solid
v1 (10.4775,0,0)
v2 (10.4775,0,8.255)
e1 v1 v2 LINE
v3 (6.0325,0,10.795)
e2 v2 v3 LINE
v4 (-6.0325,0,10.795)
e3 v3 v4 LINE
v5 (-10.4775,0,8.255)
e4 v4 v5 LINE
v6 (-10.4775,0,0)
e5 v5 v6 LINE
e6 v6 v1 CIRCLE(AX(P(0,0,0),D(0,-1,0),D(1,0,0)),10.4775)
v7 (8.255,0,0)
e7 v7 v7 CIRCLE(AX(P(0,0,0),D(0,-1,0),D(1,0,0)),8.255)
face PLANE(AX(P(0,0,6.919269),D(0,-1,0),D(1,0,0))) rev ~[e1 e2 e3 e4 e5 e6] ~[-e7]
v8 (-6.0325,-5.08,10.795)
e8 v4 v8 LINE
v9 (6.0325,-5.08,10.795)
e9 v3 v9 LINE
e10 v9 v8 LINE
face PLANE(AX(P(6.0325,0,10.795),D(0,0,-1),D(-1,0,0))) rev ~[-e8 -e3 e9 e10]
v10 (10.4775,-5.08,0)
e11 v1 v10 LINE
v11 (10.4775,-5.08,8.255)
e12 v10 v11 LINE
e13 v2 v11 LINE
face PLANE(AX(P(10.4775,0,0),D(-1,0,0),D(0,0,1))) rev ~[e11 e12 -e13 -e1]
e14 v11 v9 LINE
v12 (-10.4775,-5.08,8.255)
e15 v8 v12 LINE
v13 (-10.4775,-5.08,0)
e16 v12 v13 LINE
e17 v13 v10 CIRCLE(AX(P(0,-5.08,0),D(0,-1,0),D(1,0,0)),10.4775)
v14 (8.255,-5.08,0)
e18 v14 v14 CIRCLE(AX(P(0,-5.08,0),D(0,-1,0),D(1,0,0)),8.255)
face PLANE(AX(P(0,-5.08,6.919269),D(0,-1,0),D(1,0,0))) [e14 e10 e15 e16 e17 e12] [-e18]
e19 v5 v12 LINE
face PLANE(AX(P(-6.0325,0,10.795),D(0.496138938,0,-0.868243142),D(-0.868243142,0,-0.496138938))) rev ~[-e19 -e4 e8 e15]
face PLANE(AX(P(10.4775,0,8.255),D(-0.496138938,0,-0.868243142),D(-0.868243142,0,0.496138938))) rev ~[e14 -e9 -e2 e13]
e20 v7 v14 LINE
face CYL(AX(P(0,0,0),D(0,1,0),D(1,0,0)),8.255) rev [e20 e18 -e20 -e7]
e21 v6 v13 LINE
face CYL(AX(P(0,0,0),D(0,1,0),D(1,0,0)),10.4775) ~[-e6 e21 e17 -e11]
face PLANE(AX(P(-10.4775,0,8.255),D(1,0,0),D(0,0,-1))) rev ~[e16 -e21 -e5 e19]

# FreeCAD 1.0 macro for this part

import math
import FreeCAD as App
import Part
import Sketcher
from FreeCAD import Vector
Q = App.Units.Quantity

doc = App.newDocument("Part")
params = doc.addObject("Spreadsheet::Sheet", "Params")
for row, (alias, value) in enumerate([
    ("sketch1_diameter", "0.65 in"),
    ("sketch1_width", "0.475 in"),
    ("sketch1_height", "0.325 in"),
    ("pad1_length", "0.2 in"),
], start=1):
    params.set(f"A{row}", alias)
    params.set(f"B{row}", "=" + value)
    params.setAlias(f"B{row}", alias)

body = doc.addObject("PartDesign::Body", "Body")

# Sketch on XZ plane
sketch1 = body.newObject("Sketcher::SketchObject", "Sketch")
sketch1.AttachmentSupport = (doc.getObject("XZ_Plane"), [""])
sketch1.MapMode = "FlatFace"
sketch1.addGeometry(Part.LineSegment(Vector(10.4775, 0, 0), Vector(10.4775, 8.255, 0)), False)
sketch1.addGeometry(Part.LineSegment(Vector(10.4775, 8.255, 0), Vector(6.0325, 10.795, 0)), False)
sketch1.addGeometry(Part.LineSegment(Vector(6.0325, 10.795, 0), Vector(-6.0325, 10.795, 0)), False)
sketch1.addGeometry(Part.LineSegment(Vector(-6.0325, 10.795, 0), Vector(-10.4775, 8.255, 0)), False)
sketch1.addGeometry(Part.LineSegment(Vector(-10.4775, 8.255, 0), Vector(-10.4775, 0, 0)), False)
sketch1.addGeometry(Part.ArcOfCircle(Part.Circle(Vector(0, 0, 0), Vector(0, 0, 1), 10.4775), math.radians(180), math.radians(360)), False)
sketch1.addGeometry(Part.Circle(Vector(0, 0, 0), Vector(0, 0, 1), 8.255), False)
sketch1.addConstraint(Sketcher.Constraint("Coincident", 0, 2, 1, 1))
sketch1.addConstraint(Sketcher.Constraint("Coincident", 1, 2, 2, 1))
sketch1.addConstraint(Sketcher.Constraint("Coincident", 2, 2, 3, 1))
sketch1.addConstraint(Sketcher.Constraint("Coincident", 3, 2, 4, 1))
sketch1.addConstraint(Sketcher.Constraint("Tangent", 4, 2, 5, 1))
sketch1.addConstraint(Sketcher.Constraint("Tangent", 5, 2, 0, 1))
sketch1.addConstraint(Sketcher.Constraint("Vertical", 0))
sketch1.addConstraint(Sketcher.Constraint("Horizontal", 2))
sketch1.addConstraint(Sketcher.Constraint("Vertical", 4))
sketch1.addConstraint(Sketcher.Constraint("Coincident", 5, 3, -1, 1))
sketch1.addConstraint(Sketcher.Constraint("Coincident", 6, 3, -1, 1))
sketch1.addConstraint(Sketcher.Constraint("Horizontal", 0, 2, 3, 2))
sketch1.addConstraint(Sketcher.Constraint("Equal", 1, 3))
sketch1.addConstraint(Sketcher.Constraint("Diameter", 6, Q("0.65 in")))
sketch1.addConstraint(Sketcher.Constraint("Radius", 5, Q("0.4125 in")))
sketch1.addConstraint(Sketcher.Constraint("DistanceY", 0, 2, 1, 2, Q("0.1 in")))
sketch1.addConstraint(Sketcher.Constraint("DistanceX", 2, 2, 2, 1, Q("0.475 in")))
sketch1.addConstraint(Sketcher.Constraint("DistanceY", 0, 1, 0, 2, Q("0.325 in")))
sketch1.setExpression("Constraints[13]", "Params.sketch1_diameter")
sketch1.setExpression("Constraints[16]", "Params.sketch1_width")
sketch1.setExpression("Constraints[17]", "Params.sketch1_height")
pad1 = body.newObject("PartDesign::Pad", "Pad")
pad1.Profile = sketch1
pad1.setExpression("Length", "Params.pad1_length")

doc.recompute()
